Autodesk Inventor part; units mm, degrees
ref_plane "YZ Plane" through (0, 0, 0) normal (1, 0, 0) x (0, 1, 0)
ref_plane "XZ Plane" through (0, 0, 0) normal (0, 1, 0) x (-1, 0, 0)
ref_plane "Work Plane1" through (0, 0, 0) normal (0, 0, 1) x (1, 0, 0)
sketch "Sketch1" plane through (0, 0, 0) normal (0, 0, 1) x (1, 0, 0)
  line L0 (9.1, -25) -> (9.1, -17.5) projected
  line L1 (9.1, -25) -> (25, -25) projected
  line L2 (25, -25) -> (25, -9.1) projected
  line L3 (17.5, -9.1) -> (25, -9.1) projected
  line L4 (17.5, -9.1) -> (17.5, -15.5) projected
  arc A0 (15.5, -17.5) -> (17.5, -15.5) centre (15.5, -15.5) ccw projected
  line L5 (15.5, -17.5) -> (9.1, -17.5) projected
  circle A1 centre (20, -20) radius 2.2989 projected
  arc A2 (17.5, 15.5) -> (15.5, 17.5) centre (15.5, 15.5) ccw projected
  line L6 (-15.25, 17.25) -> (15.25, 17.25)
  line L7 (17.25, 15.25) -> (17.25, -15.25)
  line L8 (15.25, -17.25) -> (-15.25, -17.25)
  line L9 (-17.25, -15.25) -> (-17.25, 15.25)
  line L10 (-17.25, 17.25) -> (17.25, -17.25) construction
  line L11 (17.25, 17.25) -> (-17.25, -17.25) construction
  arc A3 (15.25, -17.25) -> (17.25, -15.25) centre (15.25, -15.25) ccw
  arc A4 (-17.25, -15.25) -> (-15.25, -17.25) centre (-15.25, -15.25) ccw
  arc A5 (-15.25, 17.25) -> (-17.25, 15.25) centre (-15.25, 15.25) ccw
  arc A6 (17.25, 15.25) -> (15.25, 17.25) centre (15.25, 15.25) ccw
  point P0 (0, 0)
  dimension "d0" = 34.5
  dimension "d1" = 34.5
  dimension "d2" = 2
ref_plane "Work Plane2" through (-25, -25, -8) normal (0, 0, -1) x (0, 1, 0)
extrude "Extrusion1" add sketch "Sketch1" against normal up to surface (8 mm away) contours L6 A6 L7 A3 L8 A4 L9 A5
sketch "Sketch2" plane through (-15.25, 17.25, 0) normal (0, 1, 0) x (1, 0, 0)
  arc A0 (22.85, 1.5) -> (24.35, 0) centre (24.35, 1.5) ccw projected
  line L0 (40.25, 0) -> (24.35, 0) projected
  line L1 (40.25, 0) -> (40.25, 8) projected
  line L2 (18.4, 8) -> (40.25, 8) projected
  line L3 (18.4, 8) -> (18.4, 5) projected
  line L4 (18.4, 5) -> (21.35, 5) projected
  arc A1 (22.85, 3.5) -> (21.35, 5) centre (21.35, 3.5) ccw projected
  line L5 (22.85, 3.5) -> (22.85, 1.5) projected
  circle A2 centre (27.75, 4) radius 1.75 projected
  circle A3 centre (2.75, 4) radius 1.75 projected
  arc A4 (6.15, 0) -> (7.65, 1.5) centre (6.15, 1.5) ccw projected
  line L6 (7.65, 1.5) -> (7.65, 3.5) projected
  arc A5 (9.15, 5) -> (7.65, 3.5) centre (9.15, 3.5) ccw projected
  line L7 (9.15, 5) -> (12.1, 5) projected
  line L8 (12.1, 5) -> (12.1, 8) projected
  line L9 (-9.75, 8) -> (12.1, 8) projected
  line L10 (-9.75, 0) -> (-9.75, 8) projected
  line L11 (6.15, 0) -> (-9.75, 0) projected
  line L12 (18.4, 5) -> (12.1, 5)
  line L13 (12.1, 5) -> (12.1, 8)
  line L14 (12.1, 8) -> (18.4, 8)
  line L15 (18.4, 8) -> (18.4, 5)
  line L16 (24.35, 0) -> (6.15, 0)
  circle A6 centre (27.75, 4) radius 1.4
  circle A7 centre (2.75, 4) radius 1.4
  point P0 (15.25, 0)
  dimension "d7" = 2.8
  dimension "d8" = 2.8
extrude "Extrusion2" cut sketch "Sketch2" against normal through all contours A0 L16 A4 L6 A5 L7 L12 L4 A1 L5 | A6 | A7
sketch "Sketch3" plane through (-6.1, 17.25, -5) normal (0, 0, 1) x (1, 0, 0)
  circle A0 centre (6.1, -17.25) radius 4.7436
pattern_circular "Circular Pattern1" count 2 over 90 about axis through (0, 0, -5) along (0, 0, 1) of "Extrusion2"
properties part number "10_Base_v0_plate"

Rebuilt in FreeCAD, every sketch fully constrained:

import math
import FreeCAD as App
import Part
import Sketcher

V = App.Vector

doc = App.newDocument("Part")
body = doc.addObject("PartDesign::Body", "Body")

# Sketch on XY plane
sketch1 = body.newObject("Sketcher::SketchObject", "Sketch")
sketch1.AttachmentSupport = (doc.getObject("XY_Plane"), [""])
sketch1.MapMode = "FlatFace"
sketch1.addGeometry(Part.LineSegment(V(15.25, 17.25, 0), V(-15.25, 17.25, 0)), False)
sketch1.addGeometry(Part.ArcOfCircle(Part.Circle(V(-15.25, 15.25, 0), V(0, 0, 1), 2), math.radians(90), math.radians(180)), False)
sketch1.addGeometry(Part.LineSegment(V(-17.25, 15.25, 0), V(-17.25, -15.25, 0)), False)
sketch1.addGeometry(Part.ArcOfCircle(Part.Circle(V(-15.25, -15.25, 0), V(0, 0, 1), 2), math.radians(180), math.radians(270)), False)
sketch1.addGeometry(Part.LineSegment(V(-15.25, -17.25, 0), V(15.25, -17.25, 0)), False)
sketch1.addGeometry(Part.ArcOfCircle(Part.Circle(V(15.25, -15.25, 0), V(0, 0, 1), 2), math.radians(-90), math.radians(0)), False)
sketch1.addGeometry(Part.LineSegment(V(17.25, -15.25, 0), V(17.25, 15.25, 0)), False)
sketch1.addGeometry(Part.ArcOfCircle(Part.Circle(V(15.25, 15.25, 0), V(0, 0, 1), 2), math.radians(0), math.radians(90)), False)
sketch1.addConstraint(Sketcher.Constraint("Tangent", 0, 2, 1, 1))
sketch1.addConstraint(Sketcher.Constraint("Tangent", 1, 2, 2, 1))
sketch1.addConstraint(Sketcher.Constraint("Tangent", 2, 2, 3, 1))
sketch1.addConstraint(Sketcher.Constraint("Tangent", 3, 2, 4, 1))
sketch1.addConstraint(Sketcher.Constraint("Tangent", 4, 2, 5, 1))
sketch1.addConstraint(Sketcher.Constraint("Tangent", 5, 2, 6, 1))
sketch1.addConstraint(Sketcher.Constraint("Tangent", 6, 2, 7, 1))
sketch1.addConstraint(Sketcher.Constraint("Tangent", 7, 2, 0, 1))
sketch1.addConstraint(Sketcher.Constraint("Horizontal", 0))
sketch1.addConstraint(Sketcher.Constraint("Vertical", 2))
sketch1.addConstraint(Sketcher.Constraint("Horizontal", 4))
sketch1.addConstraint(Sketcher.Constraint("Vertical", 6))
sketch1.addConstraint(Sketcher.Constraint("Equal", 1, 3))
sketch1.addConstraint(Sketcher.Constraint("Equal", 3, 5))
sketch1.addConstraint(Sketcher.Constraint("Equal", 5, 7))
sketch1.addConstraint(Sketcher.Constraint("Symmetric", 1, 3, 5, 3, -1, 1))
sketch1.addConstraint(Sketcher.Constraint("Equal", 4, 2))
sketch1.addConstraint(Sketcher.Constraint("Radius", 1, 2.0))
sketch1.addConstraint(Sketcher.Constraint("DistanceX", 0, 2, 0, 1, 30.5))
pad1 = body.newObject("PartDesign::Pad", "Pad")
pad1.Profile = sketch1
pad1.Length = 8
pad1.Reversed = True

# Sketch on XZ plane
sketch2 = body.newObject("Sketcher::SketchObject", "Sketch001")
sketch2.AttachmentSupport = (doc.getObject("XZ_Plane"), [""])
sketch2.MapMode = "FlatFace"
sketch2.AttachmentOffset = App.Placement(V(0, 0, -17.25), App.Rotation())
sketch2.addGeometry(Part.ArcOfCircle(Part.Circle(V(9.1, -1.5, 0), V(0, 0, 1), 1.5), math.radians(90), math.radians(180)), False)
sketch2.addGeometry(Part.LineSegment(V(7.6, -1.5, 0), V(7.6, -3.5, 0)), False)
sketch2.addGeometry(Part.ArcOfCircle(Part.Circle(V(6.1, -3.5, 0), V(0, 0, 1), 1.5), math.radians(-90), math.radians(0)), False)
sketch2.addGeometry(Part.LineSegment(V(6.1, -5, 0), V(-6.1, -5, 0)), False)
sketch2.addGeometry(Part.ArcOfCircle(Part.Circle(V(-6.1, -3.5, 0), V(0, 0, 1), 1.5), math.radians(180), math.radians(270)), False)
sketch2.addGeometry(Part.LineSegment(V(-7.6, -3.5, 0), V(-7.6, -1.5, 0)), False)
sketch2.addGeometry(Part.ArcOfCircle(Part.Circle(V(-9.1, -1.5, 0), V(0, 0, 1), 1.5), math.radians(0), math.radians(90)), False)
sketch2.addGeometry(Part.LineSegment(V(-9.1, 0, 0), V(9.1, 0, 0)), False)
sketch2.addGeometry(Part.Circle(V(12.5, -4, 0), V(0, 0, 1), 1.4), False)
sketch2.addGeometry(Part.Circle(V(-12.5, -4, 0), V(0, 0, 1), 1.4), False)
sketch2.addConstraint(Sketcher.Constraint("Tangent", 0, 2, 1, 1))
sketch2.addConstraint(Sketcher.Constraint("Tangent", 1, 2, 2, 2))
sketch2.addConstraint(Sketcher.Constraint("Tangent", 2, 1, 3, 1))
sketch2.addConstraint(Sketcher.Constraint("Tangent", 3, 2, 4, 2))
sketch2.addConstraint(Sketcher.Constraint("Tangent", 4, 1, 5, 1))
sketch2.addConstraint(Sketcher.Constraint("Tangent", 5, 2, 6, 1))
sketch2.addConstraint(Sketcher.Constraint("Tangent", 6, 2, 7, 1))
sketch2.addConstraint(Sketcher.Constraint("Tangent", 7, 2, 0, 1))
sketch2.addConstraint(Sketcher.Constraint("Vertical", 1))
sketch2.addConstraint(Sketcher.Constraint("Horizontal", 3))
sketch2.addConstraint(Sketcher.Constraint("Vertical", 5))
sketch2.addConstraint(Sketcher.Constraint("Horizontal", 7))
sketch2.addConstraint(Sketcher.Constraint("Equal", 0, 2))
sketch2.addConstraint(Sketcher.Constraint("Equal", 2, 4))
sketch2.addConstraint(Sketcher.Constraint("Equal", 4, 6))
sketch2.addConstraint(Sketcher.Constraint("Equal", 8, 9))
sketch2.addConstraint(Sketcher.Constraint("Symmetric", 6, 2, 7, 2, -1, 1))
sketch2.addConstraint(Sketcher.Constraint("Symmetric", 8, 3, 9, 3, -2))
sketch2.addConstraint(Sketcher.Constraint("Diameter", 8, 2.8))
sketch2.addConstraint(Sketcher.Constraint("Radius", 0, 1.5))
sketch2.addConstraint(Sketcher.Constraint("DistanceY", 1, 2, 1, 1, 2.0))
sketch2.addConstraint(Sketcher.Constraint("DistanceX", 3, 2, 3, 1, 12.2))
sketch2.addConstraint(Sketcher.Constraint("DistanceY", 8, 3, -1, 1, 4.0))
sketch2.addConstraint(Sketcher.Constraint("DistanceX", 9, 3, 8, 3, 25.0))
pocket1 = body.newObject("PartDesign::Pocket", "Pocket")
pocket1.Profile = sketch2
pocket1.Type = "ThroughAll"
pocket1.Reversed = True
doc.recompute()

polarpattern = body.newObject("PartDesign::PolarPattern", "PolarPattern")
polarpattern.Originals = [pocket1]
polarpattern.Axis = (doc.getObject("Z_Axis"), [""])
polarpattern.Angle = 90
polarpattern.Occurrences = 2
body.Tip = polarpattern

doc.recompute()
